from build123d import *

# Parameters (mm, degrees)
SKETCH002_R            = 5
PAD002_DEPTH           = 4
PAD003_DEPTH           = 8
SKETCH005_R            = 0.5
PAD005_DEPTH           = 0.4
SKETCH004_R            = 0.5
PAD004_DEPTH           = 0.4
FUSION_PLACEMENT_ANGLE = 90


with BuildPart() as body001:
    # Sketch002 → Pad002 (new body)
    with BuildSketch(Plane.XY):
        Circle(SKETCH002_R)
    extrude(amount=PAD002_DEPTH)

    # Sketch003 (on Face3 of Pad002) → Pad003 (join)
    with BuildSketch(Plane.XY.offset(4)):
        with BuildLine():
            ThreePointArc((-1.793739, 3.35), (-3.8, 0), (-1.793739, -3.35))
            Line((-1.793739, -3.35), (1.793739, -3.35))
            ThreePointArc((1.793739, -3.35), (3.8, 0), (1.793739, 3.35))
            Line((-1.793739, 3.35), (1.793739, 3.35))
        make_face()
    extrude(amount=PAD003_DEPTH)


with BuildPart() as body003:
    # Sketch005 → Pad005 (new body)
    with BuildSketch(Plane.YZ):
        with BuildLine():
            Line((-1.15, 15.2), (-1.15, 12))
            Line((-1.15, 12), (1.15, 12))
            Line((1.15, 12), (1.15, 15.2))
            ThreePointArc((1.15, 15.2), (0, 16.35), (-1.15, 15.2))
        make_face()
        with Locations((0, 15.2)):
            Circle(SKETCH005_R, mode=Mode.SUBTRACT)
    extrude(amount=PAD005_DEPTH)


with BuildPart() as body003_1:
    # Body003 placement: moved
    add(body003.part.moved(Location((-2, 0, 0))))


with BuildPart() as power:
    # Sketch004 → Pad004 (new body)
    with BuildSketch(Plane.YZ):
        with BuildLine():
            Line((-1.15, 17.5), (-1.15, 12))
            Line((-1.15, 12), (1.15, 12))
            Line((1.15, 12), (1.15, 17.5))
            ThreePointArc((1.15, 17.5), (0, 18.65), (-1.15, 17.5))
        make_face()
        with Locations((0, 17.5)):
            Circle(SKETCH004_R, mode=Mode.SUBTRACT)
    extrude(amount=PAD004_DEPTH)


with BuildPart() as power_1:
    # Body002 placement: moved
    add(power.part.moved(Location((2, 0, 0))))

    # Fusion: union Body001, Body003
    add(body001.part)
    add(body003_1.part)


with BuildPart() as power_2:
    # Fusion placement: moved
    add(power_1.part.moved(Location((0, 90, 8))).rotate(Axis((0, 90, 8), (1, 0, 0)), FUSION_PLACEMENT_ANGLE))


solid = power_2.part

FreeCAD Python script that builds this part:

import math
import FreeCAD as App
import Part
import Sketcher
from FreeCAD import Vector
Q = App.Units.Quantity

doc = App.newDocument("Part")
body = doc.addObject("PartDesign::Body", "Body")

# Sketch on XY plane
sketch1 = body.newObject("Sketcher::SketchObject", "Sketch")
sketch1.AttachmentSupport = (doc.getObject("XY_Plane"), [""])
sketch1.MapMode = "FlatFace"
sketch1.addGeometry(Part.Circle(Vector(0, 0, 0), Vector(0, 0, 1), 5), False)
sketch1.addConstraint([
    Sketcher.Constraint("Coincident", 0, 3, -1, 1),
    Sketcher.Constraint("Diameter", 0, Q("10 mm")),
])
pad1 = body.newObject("PartDesign::Pad", "Pad")
pad1.Profile = sketch1
pad1.Length = 4

# Sketch on XY plane
sketch2 = body.newObject("Sketcher::SketchObject", "Sketch001")
sketch2.AttachmentSupport = (doc.getObject("XY_Plane"), [""])
sketch2.MapMode = "FlatFace"
sketch2.AttachmentOffset = App.Placement(Vector(0, 0, 4), App.Rotation())
sketch2.addGeometry([
    Part.ArcOfCircle(Part.Circle(Vector(0, 0, 0), Vector(0, 0, 1), 3.8), math.radians(118), math.radians(242)),
    Part.LineSegment(Vector(-1.8, -3.4, 0), Vector(1.8, -3.4, 0)),
    Part.ArcOfCircle(Part.Circle(Vector(0, 0, 0), Vector(0, 0, 1), 3.8), math.radians(-62), math.radians(62)),
    Part.LineSegment(Vector(1.8, 3.4, 0), Vector(-1.8, 3.4, 0)),
], False)
sketch2.addConstraint([
    Sketcher.Constraint("Coincident", 0, 2, 1, 1),
    Sketcher.Constraint("Coincident", 1, 2, 2, 1),
    Sketcher.Constraint("Coincident", 2, 2, 3, 1),
    Sketcher.Constraint("Coincident", 3, 2, 0, 1),
    Sketcher.Constraint("Horizontal", 1),
    Sketcher.Constraint("Horizontal", 3),
    Sketcher.Constraint("Coincident", 0, 3, -1, 1),
    Sketcher.Constraint("Coincident", 2, 3, -1, 1),
    Sketcher.Constraint("Equal", 0, 2),
    Sketcher.Constraint("Vertical", 1, 2, 2, 2),
    Sketcher.Constraint("Radius", 0, Q("3.8 mm")),
    Sketcher.Constraint("DistanceY", 1, 2, 2, 2, Q("6.7 mm")),
])
pad2 = body.newObject("PartDesign::Pad", "Pad001")
pad2.Profile = sketch2
pad2.Length = 8
body2 = doc.addObject("PartDesign::Body", "Body001")

# Sketch on YZ plane
sketch3 = body2.newObject("Sketcher::SketchObject", "Sketch002")
sketch3.AttachmentSupport = (doc.getObject("YZ_Plane001"), [""])
sketch3.MapMode = "FlatFace"
sketch3.addGeometry([
    Part.LineSegment(Vector(-1.1, 15.2, 0), Vector(-1.1, 12, 0)),  # 0
    Part.LineSegment(Vector(-1.1, 12, 0), Vector(1.1, 12, 0)),  # 1
    Part.LineSegment(Vector(1.1, 12, 0), Vector(1.1, 15.2, 0)),  # 2
    Part.ArcOfCircle(Part.Circle(Vector(0, 15.2, 0), Vector(0, 0, 1), 1.1), math.radians(0), math.radians(180)),  # 3
    Part.Circle(Vector(0, 15.2, 0), Vector(0, 0, 1), 0.5),  # 4
], False)
sketch3.addConstraint([
    Sketcher.Constraint("Coincident", 0, 2, 1, 1),
    Sketcher.Constraint("Coincident", 1, 2, 2, 1),
    Sketcher.Constraint("Tangent", 2, 2, 3, 1),
    Sketcher.Constraint("Tangent", 3, 2, 0, 1),
    Sketcher.Constraint("Vertical", 0),
    Sketcher.Constraint("Horizontal", 1),
    Sketcher.Constraint("Vertical", 2),
    Sketcher.Constraint("Coincident", 4, 3, 3, 3),
    Sketcher.Constraint("PointOnObject", 3, 3, -2),
    Sketcher.Constraint("Diameter", 4, Q("1 mm")),
    Sketcher.Constraint("Radius", 3, Q("1.15 mm")),
    Sketcher.Constraint("DistanceY", 0, 2, 0, 1, Q("3.2 mm")),
    Sketcher.Constraint("DistanceY", -1, 1, 0, 2, Q("12 mm")),
])
pad3 = body2.newObject("PartDesign::Pad", "Pad002")
pad3.Profile = sketch3
pad3.Length = 0.4
body3 = doc.addObject("PartDesign::Body", "Body002")
doc.recompute()

body2.Placement = App.Placement(Vector(-2, 0, 0), App.Rotation(Vector(0, 0, 1), 0))
boolean = body3.newObject("PartDesign::Boolean", "Boolean")
boolean.Type = "Fuse"
boolean.addObjects([body2])
body4 = doc.addObject("PartDesign::Body", "Body003")

# Sketch on YZ plane
sketch4 = body4.newObject("Sketcher::SketchObject", "Sketch003")
sketch4.AttachmentSupport = (doc.getObject("YZ_Plane003"), [""])
sketch4.MapMode = "FlatFace"
sketch4.addGeometry([
    Part.LineSegment(Vector(-1.1, 17.5, 0), Vector(-1.1, 12, 0)),  # 0
    Part.LineSegment(Vector(-1.1, 12, 0), Vector(1.1, 12, 0)),  # 1
    Part.LineSegment(Vector(1.1, 12, 0), Vector(1.1, 17.5, 0)),  # 2
    Part.ArcOfCircle(Part.Circle(Vector(0, 17.5, 0), Vector(0, 0, 1), 1.1), math.radians(0), math.radians(180)),  # 3
    Part.Circle(Vector(0, 17.5, 0), Vector(0, 0, 1), 0.5),  # 4
], False)
sketch4.addConstraint([
    Sketcher.Constraint("Coincident", 0, 2, 1, 1),
    Sketcher.Constraint("Coincident", 1, 2, 2, 1),
    Sketcher.Constraint("Tangent", 2, 2, 3, 1),
    Sketcher.Constraint("Tangent", 3, 2, 0, 1),
    Sketcher.Constraint("Vertical", 0),
    Sketcher.Constraint("Horizontal", 1),
    Sketcher.Constraint("Vertical", 2),
    Sketcher.Constraint("Coincident", 4, 3, 3, 3),
    Sketcher.Constraint("PointOnObject", 3, 3, -2),
    Sketcher.Constraint("Diameter", 4, Q("1 mm")),
    Sketcher.Constraint("Radius", 3, Q("1.15 mm")),
    Sketcher.Constraint("DistanceY", 0, 2, 0, 1, Q("5.5 mm")),
    Sketcher.Constraint("DistanceY", -1, 1, 0, 2, Q("12 mm")),
])
pad4 = body4.newObject("PartDesign::Pad", "Pad003")
pad4.Profile = sketch4
pad4.Length = 0.4
body5 = doc.addObject("PartDesign::Body", "Body004")
doc.recompute()

body4.Placement = App.Placement(Vector(2, 0, 0), App.Rotation(Vector(0, 0, 1), 0))
boolean2 = body5.newObject("PartDesign::Boolean", "Boolean001")
boolean2.Type = "Fuse"
boolean2.addObjects([body4])
doc.recompute()

boolean3 = body5.newObject("PartDesign::Boolean", "Boolean002")
boolean3.Type = "Fuse"
boolean3.addObjects([body])
doc.recompute()

boolean4 = body5.newObject("PartDesign::Boolean", "Boolean003")
boolean4.Type = "Fuse"
boolean4.addObjects([body3])
body6 = doc.addObject("PartDesign::Body", "Body005")
doc.recompute()

body5.Placement = App.Placement(Vector(0, 90, 8), App.Rotation(Vector(1, 0, 0), 90))
boolean5 = body6.newObject("PartDesign::Boolean", "Boolean004")
boolean5.Type = "Fuse"
boolean5.addObjects([body5])

doc.recompute()
